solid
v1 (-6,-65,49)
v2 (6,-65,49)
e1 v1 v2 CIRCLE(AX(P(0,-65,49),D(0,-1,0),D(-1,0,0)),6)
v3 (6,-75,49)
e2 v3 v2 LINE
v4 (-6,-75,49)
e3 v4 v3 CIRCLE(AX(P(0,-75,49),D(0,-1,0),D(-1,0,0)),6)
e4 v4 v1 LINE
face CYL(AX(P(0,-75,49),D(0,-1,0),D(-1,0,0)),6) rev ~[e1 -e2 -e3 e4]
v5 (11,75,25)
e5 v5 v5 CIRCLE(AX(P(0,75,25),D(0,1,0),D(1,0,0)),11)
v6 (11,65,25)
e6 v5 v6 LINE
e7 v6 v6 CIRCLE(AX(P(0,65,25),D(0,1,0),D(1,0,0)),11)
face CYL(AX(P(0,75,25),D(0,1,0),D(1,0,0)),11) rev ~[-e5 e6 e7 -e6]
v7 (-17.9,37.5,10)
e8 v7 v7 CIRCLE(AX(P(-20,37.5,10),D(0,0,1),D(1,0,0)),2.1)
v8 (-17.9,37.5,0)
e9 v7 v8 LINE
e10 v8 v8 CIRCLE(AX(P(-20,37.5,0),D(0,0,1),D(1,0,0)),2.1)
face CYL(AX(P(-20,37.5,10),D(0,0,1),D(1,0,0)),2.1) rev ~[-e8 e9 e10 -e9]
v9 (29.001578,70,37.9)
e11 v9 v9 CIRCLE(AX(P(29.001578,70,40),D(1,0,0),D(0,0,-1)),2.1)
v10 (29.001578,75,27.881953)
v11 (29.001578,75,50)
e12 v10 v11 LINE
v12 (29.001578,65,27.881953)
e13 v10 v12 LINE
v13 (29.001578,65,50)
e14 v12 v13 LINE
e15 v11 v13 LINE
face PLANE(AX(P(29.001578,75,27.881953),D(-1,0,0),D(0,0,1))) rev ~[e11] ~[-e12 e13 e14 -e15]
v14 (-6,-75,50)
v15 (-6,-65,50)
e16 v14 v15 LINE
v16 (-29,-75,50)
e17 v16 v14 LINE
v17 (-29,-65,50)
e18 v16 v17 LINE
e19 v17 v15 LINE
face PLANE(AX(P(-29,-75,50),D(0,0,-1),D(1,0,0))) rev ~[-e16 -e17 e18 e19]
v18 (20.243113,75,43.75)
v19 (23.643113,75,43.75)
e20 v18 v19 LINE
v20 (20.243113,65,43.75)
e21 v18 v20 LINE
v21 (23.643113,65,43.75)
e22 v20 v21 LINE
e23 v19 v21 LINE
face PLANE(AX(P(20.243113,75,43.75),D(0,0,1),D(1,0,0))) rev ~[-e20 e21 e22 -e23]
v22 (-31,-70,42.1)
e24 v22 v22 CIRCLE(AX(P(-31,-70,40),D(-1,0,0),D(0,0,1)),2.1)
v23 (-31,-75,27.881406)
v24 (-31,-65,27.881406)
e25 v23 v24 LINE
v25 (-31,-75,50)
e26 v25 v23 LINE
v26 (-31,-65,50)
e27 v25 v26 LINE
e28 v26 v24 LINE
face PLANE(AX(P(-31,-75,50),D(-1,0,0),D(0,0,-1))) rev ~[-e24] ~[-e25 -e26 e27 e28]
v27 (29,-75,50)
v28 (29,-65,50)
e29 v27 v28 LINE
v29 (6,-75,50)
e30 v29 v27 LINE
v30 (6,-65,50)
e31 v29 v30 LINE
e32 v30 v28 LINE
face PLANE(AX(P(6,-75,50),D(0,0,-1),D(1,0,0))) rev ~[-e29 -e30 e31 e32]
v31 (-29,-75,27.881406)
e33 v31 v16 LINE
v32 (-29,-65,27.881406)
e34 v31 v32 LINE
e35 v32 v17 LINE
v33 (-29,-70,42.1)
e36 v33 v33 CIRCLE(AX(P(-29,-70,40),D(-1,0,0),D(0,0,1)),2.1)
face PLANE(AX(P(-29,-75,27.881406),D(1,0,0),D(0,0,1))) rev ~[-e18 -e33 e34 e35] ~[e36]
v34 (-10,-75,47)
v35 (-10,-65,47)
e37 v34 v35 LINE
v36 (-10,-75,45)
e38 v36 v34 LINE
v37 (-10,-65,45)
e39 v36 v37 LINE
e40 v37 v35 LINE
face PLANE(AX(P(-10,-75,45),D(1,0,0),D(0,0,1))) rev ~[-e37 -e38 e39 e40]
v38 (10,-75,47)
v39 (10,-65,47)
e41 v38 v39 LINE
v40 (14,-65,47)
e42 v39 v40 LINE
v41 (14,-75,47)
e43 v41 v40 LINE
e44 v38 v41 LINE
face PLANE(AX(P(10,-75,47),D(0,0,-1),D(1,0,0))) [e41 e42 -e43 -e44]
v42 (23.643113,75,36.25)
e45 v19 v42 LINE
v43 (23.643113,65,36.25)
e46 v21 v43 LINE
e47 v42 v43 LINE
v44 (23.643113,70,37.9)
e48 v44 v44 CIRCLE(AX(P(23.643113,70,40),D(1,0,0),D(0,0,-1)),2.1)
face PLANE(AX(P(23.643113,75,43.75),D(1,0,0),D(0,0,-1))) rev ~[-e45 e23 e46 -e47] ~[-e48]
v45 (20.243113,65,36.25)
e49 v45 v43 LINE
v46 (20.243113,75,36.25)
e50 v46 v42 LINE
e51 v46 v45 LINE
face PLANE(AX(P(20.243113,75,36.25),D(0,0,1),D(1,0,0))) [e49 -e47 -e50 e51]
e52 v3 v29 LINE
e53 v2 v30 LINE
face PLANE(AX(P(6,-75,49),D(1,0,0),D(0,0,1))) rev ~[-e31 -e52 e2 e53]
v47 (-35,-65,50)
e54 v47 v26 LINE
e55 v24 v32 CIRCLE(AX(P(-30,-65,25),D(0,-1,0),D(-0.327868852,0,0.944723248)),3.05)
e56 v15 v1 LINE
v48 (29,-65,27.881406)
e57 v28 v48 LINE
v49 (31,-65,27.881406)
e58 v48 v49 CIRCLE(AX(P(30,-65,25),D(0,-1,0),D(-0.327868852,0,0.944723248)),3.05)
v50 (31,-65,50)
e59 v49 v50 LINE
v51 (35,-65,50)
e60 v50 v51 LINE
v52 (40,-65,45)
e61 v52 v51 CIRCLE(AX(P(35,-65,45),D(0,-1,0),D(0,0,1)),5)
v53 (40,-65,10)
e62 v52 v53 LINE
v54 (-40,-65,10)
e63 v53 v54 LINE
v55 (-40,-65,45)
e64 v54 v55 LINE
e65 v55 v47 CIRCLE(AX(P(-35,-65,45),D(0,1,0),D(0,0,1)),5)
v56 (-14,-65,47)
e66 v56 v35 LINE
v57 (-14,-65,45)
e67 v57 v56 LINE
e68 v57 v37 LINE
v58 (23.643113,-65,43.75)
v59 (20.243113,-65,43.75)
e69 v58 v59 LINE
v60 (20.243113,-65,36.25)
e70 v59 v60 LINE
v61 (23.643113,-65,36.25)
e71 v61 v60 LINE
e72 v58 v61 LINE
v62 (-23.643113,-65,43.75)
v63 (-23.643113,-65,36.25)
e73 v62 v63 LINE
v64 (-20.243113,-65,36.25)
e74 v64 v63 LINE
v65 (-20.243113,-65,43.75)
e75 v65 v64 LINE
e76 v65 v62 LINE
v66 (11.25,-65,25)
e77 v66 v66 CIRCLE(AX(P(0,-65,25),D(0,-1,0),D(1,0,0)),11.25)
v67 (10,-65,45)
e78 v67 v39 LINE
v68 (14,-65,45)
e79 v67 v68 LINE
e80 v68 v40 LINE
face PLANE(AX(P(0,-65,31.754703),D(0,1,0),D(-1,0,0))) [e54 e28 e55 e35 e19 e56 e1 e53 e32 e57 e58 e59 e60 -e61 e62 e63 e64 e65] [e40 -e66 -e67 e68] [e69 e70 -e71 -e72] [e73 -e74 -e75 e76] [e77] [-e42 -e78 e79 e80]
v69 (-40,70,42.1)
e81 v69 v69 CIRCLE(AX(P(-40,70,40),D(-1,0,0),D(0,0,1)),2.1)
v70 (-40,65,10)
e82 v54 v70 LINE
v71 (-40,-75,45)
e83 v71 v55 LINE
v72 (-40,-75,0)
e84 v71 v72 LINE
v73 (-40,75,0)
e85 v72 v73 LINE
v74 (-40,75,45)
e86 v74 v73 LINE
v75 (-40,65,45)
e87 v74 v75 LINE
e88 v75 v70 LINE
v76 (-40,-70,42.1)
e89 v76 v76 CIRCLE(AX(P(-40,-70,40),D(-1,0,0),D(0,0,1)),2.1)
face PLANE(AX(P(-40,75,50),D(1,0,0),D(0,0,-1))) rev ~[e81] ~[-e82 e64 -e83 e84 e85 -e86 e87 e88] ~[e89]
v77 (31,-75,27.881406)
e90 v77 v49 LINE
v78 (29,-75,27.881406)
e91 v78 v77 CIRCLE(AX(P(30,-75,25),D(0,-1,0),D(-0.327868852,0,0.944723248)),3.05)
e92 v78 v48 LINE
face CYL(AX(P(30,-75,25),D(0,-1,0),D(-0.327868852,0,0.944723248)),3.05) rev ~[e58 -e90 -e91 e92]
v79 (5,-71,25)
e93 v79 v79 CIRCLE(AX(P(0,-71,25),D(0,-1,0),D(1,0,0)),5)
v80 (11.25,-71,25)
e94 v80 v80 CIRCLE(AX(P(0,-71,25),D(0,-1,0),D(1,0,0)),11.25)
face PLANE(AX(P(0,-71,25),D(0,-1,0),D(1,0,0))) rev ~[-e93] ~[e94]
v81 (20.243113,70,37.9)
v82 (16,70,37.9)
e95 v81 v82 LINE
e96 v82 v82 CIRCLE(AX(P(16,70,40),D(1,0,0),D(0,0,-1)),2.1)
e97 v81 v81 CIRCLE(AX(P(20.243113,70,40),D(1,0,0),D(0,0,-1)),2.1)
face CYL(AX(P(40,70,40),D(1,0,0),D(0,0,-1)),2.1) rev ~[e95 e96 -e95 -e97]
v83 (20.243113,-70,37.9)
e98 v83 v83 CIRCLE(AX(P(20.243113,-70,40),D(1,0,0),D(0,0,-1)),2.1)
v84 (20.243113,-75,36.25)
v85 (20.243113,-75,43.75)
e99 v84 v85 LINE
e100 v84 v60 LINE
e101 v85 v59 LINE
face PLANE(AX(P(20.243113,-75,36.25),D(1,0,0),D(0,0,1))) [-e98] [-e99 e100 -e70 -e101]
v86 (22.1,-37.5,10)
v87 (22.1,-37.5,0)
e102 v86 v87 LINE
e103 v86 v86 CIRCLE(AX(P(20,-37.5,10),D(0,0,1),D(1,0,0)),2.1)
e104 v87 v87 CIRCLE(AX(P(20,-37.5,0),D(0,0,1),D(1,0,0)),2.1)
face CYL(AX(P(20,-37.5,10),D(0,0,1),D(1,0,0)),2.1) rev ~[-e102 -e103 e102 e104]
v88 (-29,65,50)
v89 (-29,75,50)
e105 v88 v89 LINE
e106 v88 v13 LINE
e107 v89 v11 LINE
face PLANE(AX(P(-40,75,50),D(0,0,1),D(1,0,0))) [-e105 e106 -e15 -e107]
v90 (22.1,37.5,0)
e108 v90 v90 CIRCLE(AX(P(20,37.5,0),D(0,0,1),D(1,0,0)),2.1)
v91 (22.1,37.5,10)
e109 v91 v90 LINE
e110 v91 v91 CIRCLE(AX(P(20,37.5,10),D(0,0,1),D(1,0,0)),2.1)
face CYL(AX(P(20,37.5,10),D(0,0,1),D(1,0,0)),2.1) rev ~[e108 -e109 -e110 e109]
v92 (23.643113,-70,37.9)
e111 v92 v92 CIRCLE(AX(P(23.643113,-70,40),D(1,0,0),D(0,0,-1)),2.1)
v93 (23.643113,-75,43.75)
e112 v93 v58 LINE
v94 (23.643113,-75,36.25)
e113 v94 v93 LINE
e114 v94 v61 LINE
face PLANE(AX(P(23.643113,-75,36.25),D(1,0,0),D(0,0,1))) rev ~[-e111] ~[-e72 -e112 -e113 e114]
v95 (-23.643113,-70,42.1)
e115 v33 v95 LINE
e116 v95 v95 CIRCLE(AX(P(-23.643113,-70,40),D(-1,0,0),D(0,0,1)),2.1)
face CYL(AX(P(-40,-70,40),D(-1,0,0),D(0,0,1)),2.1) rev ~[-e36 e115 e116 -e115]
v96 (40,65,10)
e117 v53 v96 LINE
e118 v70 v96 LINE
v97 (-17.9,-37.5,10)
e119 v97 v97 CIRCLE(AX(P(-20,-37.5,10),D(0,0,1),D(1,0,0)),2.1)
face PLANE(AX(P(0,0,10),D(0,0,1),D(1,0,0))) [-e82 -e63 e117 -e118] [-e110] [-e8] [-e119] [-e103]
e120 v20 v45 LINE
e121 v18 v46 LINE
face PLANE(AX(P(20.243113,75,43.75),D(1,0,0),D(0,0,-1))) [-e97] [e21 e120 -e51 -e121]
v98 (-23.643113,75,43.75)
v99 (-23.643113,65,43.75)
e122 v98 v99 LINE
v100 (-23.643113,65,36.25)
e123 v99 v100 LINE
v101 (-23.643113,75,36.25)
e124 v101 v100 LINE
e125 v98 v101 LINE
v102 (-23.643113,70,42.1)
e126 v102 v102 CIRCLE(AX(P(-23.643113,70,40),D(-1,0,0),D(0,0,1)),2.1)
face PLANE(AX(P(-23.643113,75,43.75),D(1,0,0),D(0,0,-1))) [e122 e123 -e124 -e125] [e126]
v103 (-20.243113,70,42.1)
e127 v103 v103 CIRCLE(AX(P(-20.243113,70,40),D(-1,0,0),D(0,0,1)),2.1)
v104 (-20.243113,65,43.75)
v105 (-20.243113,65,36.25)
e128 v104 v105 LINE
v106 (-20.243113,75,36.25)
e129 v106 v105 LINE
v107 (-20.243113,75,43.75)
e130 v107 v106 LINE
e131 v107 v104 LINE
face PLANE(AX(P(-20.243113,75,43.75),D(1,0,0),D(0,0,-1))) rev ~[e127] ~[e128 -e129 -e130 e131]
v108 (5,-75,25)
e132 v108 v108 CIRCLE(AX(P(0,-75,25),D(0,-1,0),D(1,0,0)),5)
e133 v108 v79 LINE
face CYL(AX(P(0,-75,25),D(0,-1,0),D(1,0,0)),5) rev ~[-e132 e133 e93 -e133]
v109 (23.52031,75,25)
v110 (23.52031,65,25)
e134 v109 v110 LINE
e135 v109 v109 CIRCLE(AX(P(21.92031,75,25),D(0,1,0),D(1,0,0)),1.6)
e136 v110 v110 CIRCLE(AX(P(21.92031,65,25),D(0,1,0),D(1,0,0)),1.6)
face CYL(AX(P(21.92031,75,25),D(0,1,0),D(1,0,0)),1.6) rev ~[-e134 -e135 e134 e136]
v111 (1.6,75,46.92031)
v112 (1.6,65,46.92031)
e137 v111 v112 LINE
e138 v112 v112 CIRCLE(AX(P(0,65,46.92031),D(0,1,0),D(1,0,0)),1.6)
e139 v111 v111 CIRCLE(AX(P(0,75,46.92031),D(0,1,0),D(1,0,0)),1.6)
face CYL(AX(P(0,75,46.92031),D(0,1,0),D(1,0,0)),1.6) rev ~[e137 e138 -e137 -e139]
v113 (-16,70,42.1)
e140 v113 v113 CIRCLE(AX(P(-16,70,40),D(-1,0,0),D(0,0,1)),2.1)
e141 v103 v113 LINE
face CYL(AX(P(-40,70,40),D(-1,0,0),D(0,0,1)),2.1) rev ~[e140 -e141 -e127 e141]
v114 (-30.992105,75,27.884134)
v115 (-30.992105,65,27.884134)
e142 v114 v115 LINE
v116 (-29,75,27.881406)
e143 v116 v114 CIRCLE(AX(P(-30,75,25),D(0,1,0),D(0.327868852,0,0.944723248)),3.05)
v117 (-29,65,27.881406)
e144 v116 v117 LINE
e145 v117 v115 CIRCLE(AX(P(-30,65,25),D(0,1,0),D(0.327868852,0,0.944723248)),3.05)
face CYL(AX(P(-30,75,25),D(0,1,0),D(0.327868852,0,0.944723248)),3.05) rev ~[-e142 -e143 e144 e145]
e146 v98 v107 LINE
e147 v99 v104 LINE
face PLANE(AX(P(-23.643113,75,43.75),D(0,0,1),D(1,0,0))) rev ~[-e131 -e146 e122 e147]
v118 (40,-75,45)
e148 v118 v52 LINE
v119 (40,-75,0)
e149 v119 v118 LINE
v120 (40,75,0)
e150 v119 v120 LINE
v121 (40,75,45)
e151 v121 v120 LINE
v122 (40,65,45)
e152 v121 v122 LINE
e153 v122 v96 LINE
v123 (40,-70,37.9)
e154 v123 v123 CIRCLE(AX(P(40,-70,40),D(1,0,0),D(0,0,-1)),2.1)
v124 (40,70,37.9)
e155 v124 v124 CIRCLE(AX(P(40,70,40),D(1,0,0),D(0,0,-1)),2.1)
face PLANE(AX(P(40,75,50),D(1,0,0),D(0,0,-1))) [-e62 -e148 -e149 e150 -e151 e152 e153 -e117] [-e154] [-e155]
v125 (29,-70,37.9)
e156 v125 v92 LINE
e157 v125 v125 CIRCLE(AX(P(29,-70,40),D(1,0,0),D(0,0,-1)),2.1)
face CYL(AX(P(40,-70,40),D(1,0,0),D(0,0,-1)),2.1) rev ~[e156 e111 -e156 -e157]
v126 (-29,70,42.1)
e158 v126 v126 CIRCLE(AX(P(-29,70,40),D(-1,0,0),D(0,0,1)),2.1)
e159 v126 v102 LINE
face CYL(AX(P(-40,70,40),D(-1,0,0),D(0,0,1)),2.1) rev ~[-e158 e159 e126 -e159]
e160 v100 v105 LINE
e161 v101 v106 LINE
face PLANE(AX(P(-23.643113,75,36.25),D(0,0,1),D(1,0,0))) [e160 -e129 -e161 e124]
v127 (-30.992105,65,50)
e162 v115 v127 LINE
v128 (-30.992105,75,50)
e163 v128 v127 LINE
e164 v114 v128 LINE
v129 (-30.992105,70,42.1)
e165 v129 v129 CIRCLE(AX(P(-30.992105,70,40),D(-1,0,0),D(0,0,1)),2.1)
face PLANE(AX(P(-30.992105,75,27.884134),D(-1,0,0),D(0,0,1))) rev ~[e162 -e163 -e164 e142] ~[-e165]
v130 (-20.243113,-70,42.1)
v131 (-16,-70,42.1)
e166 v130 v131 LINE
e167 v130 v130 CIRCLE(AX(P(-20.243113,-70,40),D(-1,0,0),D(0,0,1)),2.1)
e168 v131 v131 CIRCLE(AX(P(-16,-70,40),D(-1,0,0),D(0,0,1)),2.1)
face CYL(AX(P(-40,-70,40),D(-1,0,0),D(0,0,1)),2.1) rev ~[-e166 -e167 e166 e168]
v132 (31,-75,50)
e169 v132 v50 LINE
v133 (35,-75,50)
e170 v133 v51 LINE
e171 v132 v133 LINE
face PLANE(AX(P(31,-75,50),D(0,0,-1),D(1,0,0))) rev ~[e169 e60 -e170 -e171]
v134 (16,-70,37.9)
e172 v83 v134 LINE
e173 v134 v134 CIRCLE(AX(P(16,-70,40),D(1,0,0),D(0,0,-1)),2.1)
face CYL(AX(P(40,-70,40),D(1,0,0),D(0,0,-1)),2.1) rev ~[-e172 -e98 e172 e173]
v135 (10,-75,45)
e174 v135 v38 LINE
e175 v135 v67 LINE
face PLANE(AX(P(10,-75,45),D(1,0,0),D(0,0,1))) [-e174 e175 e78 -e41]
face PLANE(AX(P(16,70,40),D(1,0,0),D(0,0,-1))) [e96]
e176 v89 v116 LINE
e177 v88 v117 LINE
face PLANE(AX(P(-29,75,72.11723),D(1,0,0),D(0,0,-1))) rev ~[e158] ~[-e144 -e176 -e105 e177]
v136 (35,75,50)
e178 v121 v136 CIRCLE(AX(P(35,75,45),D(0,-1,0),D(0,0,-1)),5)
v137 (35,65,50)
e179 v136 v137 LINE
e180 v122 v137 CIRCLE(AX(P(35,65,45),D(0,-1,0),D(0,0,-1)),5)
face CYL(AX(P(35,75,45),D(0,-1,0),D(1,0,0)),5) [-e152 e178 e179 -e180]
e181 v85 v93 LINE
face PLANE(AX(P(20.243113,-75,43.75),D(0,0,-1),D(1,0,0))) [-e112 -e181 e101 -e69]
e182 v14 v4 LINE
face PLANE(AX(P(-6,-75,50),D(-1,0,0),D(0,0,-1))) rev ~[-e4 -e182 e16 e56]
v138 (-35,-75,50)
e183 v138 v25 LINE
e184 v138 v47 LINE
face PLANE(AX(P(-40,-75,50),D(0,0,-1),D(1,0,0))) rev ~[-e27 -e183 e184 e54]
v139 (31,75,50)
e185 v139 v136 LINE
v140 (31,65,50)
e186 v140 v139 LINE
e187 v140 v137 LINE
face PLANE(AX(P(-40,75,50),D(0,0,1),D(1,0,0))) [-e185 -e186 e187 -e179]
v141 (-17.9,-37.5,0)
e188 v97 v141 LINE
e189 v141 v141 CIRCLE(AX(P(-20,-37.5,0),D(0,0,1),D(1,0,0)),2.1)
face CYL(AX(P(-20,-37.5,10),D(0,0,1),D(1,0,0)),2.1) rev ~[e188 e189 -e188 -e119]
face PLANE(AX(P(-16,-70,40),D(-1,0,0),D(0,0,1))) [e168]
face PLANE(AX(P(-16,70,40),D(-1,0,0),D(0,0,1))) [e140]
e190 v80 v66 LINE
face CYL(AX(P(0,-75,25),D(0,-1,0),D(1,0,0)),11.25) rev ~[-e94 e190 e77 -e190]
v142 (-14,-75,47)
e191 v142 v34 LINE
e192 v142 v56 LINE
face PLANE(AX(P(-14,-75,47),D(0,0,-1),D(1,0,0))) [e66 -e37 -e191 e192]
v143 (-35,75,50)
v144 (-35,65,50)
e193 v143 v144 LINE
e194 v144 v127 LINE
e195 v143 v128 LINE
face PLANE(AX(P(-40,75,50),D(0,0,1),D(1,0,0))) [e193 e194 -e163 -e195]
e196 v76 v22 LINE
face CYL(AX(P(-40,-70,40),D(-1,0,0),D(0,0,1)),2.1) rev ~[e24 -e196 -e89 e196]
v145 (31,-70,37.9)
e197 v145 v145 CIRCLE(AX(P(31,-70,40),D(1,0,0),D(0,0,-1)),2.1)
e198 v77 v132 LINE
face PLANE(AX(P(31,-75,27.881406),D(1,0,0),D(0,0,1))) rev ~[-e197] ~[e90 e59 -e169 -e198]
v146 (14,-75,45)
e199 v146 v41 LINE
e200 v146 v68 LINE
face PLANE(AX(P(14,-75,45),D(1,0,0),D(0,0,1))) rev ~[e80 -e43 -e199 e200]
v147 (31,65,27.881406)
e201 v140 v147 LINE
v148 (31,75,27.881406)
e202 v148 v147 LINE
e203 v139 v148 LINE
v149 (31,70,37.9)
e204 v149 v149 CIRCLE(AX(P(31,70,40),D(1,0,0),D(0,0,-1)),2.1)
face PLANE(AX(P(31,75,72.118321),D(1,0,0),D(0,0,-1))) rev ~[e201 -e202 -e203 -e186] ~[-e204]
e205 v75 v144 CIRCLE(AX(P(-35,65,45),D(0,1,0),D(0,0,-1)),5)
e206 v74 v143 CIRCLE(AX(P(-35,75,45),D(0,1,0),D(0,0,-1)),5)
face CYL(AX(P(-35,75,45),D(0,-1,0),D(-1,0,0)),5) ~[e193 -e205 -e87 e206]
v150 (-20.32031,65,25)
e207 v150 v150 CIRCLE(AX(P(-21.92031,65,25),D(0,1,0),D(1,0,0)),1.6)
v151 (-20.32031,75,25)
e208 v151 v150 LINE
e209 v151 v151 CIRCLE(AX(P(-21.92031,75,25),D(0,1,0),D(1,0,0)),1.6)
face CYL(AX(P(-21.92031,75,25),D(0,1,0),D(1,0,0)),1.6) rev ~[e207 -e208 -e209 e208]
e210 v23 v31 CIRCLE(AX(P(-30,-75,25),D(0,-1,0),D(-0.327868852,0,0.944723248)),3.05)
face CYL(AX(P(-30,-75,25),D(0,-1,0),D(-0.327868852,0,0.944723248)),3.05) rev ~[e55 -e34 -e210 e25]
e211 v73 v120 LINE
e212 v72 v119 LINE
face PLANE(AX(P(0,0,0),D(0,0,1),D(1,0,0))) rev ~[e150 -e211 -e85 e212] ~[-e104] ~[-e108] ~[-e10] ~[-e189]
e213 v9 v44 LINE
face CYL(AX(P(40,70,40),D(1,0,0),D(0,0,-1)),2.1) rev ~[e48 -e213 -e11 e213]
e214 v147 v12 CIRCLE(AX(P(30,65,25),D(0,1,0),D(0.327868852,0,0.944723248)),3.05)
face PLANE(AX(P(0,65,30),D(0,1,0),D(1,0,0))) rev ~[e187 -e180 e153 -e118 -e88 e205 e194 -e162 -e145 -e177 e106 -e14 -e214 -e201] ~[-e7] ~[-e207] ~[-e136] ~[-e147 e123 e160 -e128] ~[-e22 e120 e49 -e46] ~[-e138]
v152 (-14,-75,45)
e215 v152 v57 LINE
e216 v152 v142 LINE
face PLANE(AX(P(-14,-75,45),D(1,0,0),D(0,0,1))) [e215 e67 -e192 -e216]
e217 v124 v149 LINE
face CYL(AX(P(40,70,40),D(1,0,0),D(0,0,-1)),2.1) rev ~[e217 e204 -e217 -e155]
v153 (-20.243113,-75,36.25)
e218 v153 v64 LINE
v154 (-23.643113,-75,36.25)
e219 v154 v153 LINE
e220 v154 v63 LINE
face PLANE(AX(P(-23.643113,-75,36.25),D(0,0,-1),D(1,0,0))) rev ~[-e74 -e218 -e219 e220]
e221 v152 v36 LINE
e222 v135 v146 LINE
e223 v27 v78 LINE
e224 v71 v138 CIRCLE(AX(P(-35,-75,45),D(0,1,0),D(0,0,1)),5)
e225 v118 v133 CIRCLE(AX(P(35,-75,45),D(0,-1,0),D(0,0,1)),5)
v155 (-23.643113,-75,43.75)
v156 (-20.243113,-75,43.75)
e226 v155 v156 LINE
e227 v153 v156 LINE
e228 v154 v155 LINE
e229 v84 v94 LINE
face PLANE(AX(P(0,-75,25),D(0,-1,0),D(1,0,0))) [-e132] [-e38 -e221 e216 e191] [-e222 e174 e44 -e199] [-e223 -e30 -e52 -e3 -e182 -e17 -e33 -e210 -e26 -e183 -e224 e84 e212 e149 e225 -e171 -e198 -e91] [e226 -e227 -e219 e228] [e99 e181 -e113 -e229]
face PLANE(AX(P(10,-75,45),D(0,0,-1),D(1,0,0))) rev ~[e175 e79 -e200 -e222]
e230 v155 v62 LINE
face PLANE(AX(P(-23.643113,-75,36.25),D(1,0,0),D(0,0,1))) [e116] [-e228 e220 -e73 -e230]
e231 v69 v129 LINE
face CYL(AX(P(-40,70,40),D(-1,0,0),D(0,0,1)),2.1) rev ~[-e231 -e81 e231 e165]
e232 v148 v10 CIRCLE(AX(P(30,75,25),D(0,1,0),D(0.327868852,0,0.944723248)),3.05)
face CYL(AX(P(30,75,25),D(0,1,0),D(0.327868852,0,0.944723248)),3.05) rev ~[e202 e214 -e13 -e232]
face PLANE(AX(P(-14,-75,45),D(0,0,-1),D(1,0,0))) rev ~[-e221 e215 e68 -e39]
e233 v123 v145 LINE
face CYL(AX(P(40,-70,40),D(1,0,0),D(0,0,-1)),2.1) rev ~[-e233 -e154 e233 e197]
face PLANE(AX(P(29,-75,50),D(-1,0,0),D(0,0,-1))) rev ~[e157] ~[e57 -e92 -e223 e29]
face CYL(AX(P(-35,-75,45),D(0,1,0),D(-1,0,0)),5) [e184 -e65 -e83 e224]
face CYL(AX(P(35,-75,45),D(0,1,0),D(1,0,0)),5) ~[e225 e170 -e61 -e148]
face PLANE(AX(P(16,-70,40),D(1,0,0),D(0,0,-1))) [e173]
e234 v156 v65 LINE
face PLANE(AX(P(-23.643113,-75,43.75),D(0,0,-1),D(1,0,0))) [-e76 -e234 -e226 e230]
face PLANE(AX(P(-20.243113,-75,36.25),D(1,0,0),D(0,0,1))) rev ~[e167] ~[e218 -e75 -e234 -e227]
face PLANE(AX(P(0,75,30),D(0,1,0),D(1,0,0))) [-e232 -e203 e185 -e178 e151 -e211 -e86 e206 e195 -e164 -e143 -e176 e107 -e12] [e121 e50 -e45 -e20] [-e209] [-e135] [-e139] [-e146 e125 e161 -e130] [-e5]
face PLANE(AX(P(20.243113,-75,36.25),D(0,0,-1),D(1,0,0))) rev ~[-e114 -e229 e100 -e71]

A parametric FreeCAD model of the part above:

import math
import FreeCAD as App
import Part
import Sketcher

V = App.Vector
Q = App.Units.Quantity


def edges_at(feature, points):
    """Names of the edges that pass closest to the given points."""
    edges = feature.Shape.Edges
    near = lambda p: min(range(len(edges)), key=lambda i: edges[i].distToShape(Part.Vertex(*p))[0])
    return sorted({f"Edge{near(p) + 1}" for p in points})


def add_polygon(sketch, points):
    """Adds a closed chain of lines whose ends are joined by coincident constraints."""
    first, n = sketch.GeometryCount, len(points)
    for a, b in zip(points, points[1:] + points[:1]):
        sketch.addGeometry(Part.LineSegment(App.Vector(*a, 0), App.Vector(*b, 0)), False)
    for i in range(n):
        sketch.addConstraint(Sketcher.Constraint("Coincident", first + i, 2, first + (i + 1) % n, 1))

doc = App.newDocument("Part")
body = doc.addObject("PartDesign::Body", "Body")

# Sketch on XY plane
sketch1 = doc.addObject("Sketcher::SketchObject", "Sketch")
body.addObject(sketch1)
sketch1.AttachmentSupport = (doc.XY_Plane, [""])
sketch1.MapMode = "FlatFace"
add_polygon(sketch1, [(-40, 75), (-40, -75), (40, -75), (40, 75)])  # lines 0-3
sketch1.addConstraint(Sketcher.Constraint("Vertical", 0))
sketch1.addConstraint(Sketcher.Constraint("Horizontal", 1))
sketch1.addConstraint(Sketcher.Constraint("Vertical", 2))
sketch1.addConstraint(Sketcher.Constraint("Horizontal", 3))
sketch1.addConstraint(Sketcher.Constraint("Symmetric", 0, 2, 2, 2, -1, 1))
sketch1.addConstraint(Sketcher.Constraint("DistanceX", 1, 1, 1, 2, Q("80 mm")))
sketch1.addConstraint(Sketcher.Constraint("DistanceY", 0, 2, 0, 1, Q("150 mm")))
pad1 = doc.addObject("PartDesign::Pad", "Pad")
body.addObject(pad1)
pad1.Profile = sketch1
pad1.Length = 10

# Sketch on XZ plane
sketch2 = doc.addObject("Sketcher::SketchObject", "Sketch001")
body.addObject(sketch2)
sketch2.AttachmentSupport = (doc.XZ_Plane, [""])
sketch2.MapMode = "FlatFace"
sketch2.AttachmentOffset = App.Placement(V(0, 0, 75), App.Rotation())
sketch2.addGeometry(Part.ArcOfCircle(Part.Circle(V(0, 49, 0), V(0, 0, 1), 6), math.radians(180), math.radians(360)), False)
sketch2.addGeometry(Part.LineSegment(V(-6, 49, 0), V(-6, 50, 0)), False)
sketch2.addGeometry(Part.LineSegment(V(-6, 50, 0), V(-29, 50, 0)), False)
sketch2.addGeometry(Part.LineSegment(V(-29, 50, 0), V(-29, 27.9, 0)), False)
sketch2.addGeometry(Part.ArcOfCircle(Part.Circle(V(-30, 25, 0), V(0, 0, 1), 3), math.radians(109), math.radians(431)), False)
sketch2.addGeometry(Part.LineSegment(V(-31, 27.9, 0), V(-31, 50, 0)), False)
sketch2.addGeometry(Part.LineSegment(V(-31, 50, 0), V(-40, 50, 0)), False)
sketch2.addGeometry(Part.LineSegment(V(-40, 50, 0), V(-40, 10, 0)), False)
sketch2.addGeometry(Part.LineSegment(V(-40, 10, 0), V(40, 10, 0)), False)
sketch2.addGeometry(Part.LineSegment(V(40, 10, 0), V(40, 50, 0)), False)
sketch2.addGeometry(Part.LineSegment(V(40, 50, 0), V(31, 50, 0)), False)
sketch2.addGeometry(Part.LineSegment(V(31, 50, 0), V(31, 27.9, 0)), False)
sketch2.addGeometry(Part.ArcOfCircle(Part.Circle(V(30, 25, 0), V(0, 0, 1), 3), math.radians(109), math.radians(431)), False)
sketch2.addGeometry(Part.LineSegment(V(29, 27.9, 0), V(29, 50, 0)), False)
sketch2.addGeometry(Part.LineSegment(V(29, 50, 0), V(6, 50, 0)), False)
sketch2.addGeometry(Part.LineSegment(V(6, 50, 0), V(6, 49, 0)), False)
sketch2.addGeometry(Part.Circle(V(0, 25, 0), V(0, 0, 1), 11.2), False)
sketch2.addConstraint(Sketcher.Constraint("Tangent", 0, 1, 1, 1))
sketch2.addConstraint(Sketcher.Constraint("Coincident", 1, 2, 2, 1))
sketch2.addConstraint(Sketcher.Constraint("Coincident", 2, 2, 3, 1))
sketch2.addConstraint(Sketcher.Constraint("Coincident", 3, 2, 4, 2))
sketch2.addConstraint(Sketcher.Constraint("Coincident", 4, 1, 5, 1))
sketch2.addConstraint(Sketcher.Constraint("Coincident", 5, 2, 6, 1))
sketch2.addConstraint(Sketcher.Constraint("Coincident", 6, 2, 7, 1))
sketch2.addConstraint(Sketcher.Constraint("Coincident", 7, 2, 8, 1))
sketch2.addConstraint(Sketcher.Constraint("Coincident", 8, 2, 9, 1))
sketch2.addConstraint(Sketcher.Constraint("Coincident", 9, 2, 10, 1))
sketch2.addConstraint(Sketcher.Constraint("Coincident", 10, 2, 11, 1))
sketch2.addConstraint(Sketcher.Constraint("Coincident", 11, 2, 12, 2))
sketch2.addConstraint(Sketcher.Constraint("Coincident", 12, 1, 13, 1))
sketch2.addConstraint(Sketcher.Constraint("Coincident", 13, 2, 14, 1))
sketch2.addConstraint(Sketcher.Constraint("Coincident", 14, 2, 15, 1))
sketch2.addConstraint(Sketcher.Constraint("Tangent", 15, 2, 0, 2))
sketch2.addConstraint(Sketcher.Constraint("Vertical", 1))
sketch2.addConstraint(Sketcher.Constraint("Horizontal", 2))
sketch2.addConstraint(Sketcher.Constraint("Vertical", 3))
sketch2.addConstraint(Sketcher.Constraint("Vertical", 5))
sketch2.addConstraint(Sketcher.Constraint("Horizontal", 6))
sketch2.addConstraint(Sketcher.Constraint("Vertical", 7))
sketch2.addConstraint(Sketcher.Constraint("Horizontal", 8))
sketch2.addConstraint(Sketcher.Constraint("Vertical", 9))
sketch2.addConstraint(Sketcher.Constraint("Horizontal", 10))
sketch2.addConstraint(Sketcher.Constraint("Vertical", 11))
sketch2.addConstraint(Sketcher.Constraint("Vertical", 13))
sketch2.addConstraint(Sketcher.Constraint("Horizontal", 14))
sketch2.addConstraint(Sketcher.Constraint("Vertical", 15))
sketch2.addConstraint(Sketcher.Constraint("Equal", 4, 12))
sketch2.addConstraint(Sketcher.Constraint("Symmetric", 4, 3, 12, 3, -2))
sketch2.addConstraint(Sketcher.Constraint("Symmetric", 6, 2, 9, 2, -2))
sketch2.addConstraint(Sketcher.Constraint("Symmetric", 2, 2, 13, 2, -2))
sketch2.addConstraint(Sketcher.Constraint("PointOnObject", 0, 3, -2))
sketch2.addConstraint(Sketcher.Constraint("PointOnObject", 16, 3, -2))
sketch2.addConstraint(Sketcher.Constraint("Horizontal", 12, 3, 16, 3))
sketch2.addConstraint(Sketcher.Constraint("Horizontal", 3, 2, 4, 1))
sketch2.addConstraint(Sketcher.Constraint("Horizontal", 2, 2, 5, 2))
sketch2.addConstraint(Sketcher.Constraint("Horizontal", 4, 1, 11, 2))
sketch2.addConstraint(Sketcher.Constraint("Radius", 0, Q("6 mm")))
sketch2.addConstraint(Sketcher.Constraint("Diameter", 16, Q("22.5 mm")))
sketch2.addConstraint(Sketcher.Constraint("DistanceX", 2, 2, 2, 1, Q("23 mm")))
sketch2.addConstraint(Sketcher.Constraint("DistanceX", 6, 2, 6, 1, Q("9 mm")))
sketch2.addConstraint(Sketcher.Constraint("DistanceX", 8, 1, 8, 2, Q("80 mm")))
sketch2.addConstraint(Sketcher.Constraint("DistanceY", 1, 1, 1, 2, Q("1 mm")))
sketch2.addConstraint(Sketcher.Constraint("DistanceY", 7, 2, 7, 1, Q("40 mm")))
sketch2.addConstraint(Sketcher.Constraint("Radius", 4, Q("3.05 mm")))
sketch2.addConstraint(Sketcher.Constraint("DistanceY", -1, 1, 0, 3, Q("49 mm")))
sketch2.addConstraint(Sketcher.Constraint("DistanceY", -1, 1, 4, 3, Q("25 mm")))
pad2 = doc.addObject("PartDesign::Pad", "Pad001")
body.addObject(pad2)
pad2.Profile = sketch2
pad2.Length = 10
pad2.Reversed = True

# Sketch on XZ plane
sketch3 = doc.addObject("Sketcher::SketchObject", "Sketch002")
body.addObject(sketch3)
sketch3.AttachmentSupport = (doc.XZ_Plane, [""])
sketch3.MapMode = "FlatFace"
sketch3.AttachmentOffset = App.Placement(V(0, 0, 75), App.Rotation())
sketch3.addGeometry(Part.Circle(V(0, 25, 0), V(0, 0, 1), 11), False)
sketch3.addGeometry(Part.Circle(V(0, 25, 0), V(0, 0, 1), 5), False)
sketch3.addConstraint(Sketcher.Constraint("Coincident", 1, 3, 0, 3))
sketch3.addConstraint(Sketcher.Constraint("PointOnObject", 0, 3, -2))
sketch3.addConstraint(Sketcher.Constraint("Diameter", 1, Q("10 mm")))
sketch3.addConstraint(Sketcher.Constraint("Diameter", 0, Q("22.5 mm")))
sketch3.addConstraint(Sketcher.Constraint("DistanceY", -1, 1, 0, 3, Q("25 mm")))
pad3 = doc.addObject("PartDesign::Pad", "Pad002")
body.addObject(pad3)
pad3.Profile = sketch3
pad3.Length = 4
pad3.Reversed = True

# Sketch on YZ plane
sketch4 = doc.addObject("Sketcher::SketchObject", "Sketch003")
body.addObject(sketch4)
sketch4.AttachmentSupport = (doc.YZ_Plane, [""])
sketch4.MapMode = "FlatFace"
sketch4.AttachmentOffset = App.Placement(V(0, 0, 40), App.Rotation())
sketch4.addGeometry(Part.Circle(V(-70, 40, 0), V(0, 0, 1), 2.1), False)
sketch4.addConstraint(Sketcher.Constraint("Diameter", 0, Q("4.2 mm")))
sketch4.addConstraint(Sketcher.Constraint("DistanceX", 0, 3, -1, 1, Q("70 mm")))
sketch4.addConstraint(Sketcher.Constraint("DistanceY", -1, 1, 0, 3, Q("40 mm")))
pocket1 = doc.addObject("PartDesign::Pocket", "Pocket")
body.addObject(pocket1)
pocket1.Profile = sketch4
pocket1.Length = 24

# Sketch on XZ plane
sketch5 = doc.addObject("Sketcher::SketchObject", "Sketch004")
body.addObject(sketch5)
sketch5.AttachmentSupport = (doc.XZ_Plane, [""])
sketch5.MapMode = "FlatFace"
sketch5.AttachmentOffset = App.Placement(V(0, 0, 75), App.Rotation())
add_polygon(sketch5, [(-23.6, 43.8), (-23.6, 36.2), (-20.2, 36.2), (-20.2, 43.8)])  # lines 0-3
add_polygon(sketch5, [(20.2, 43.8), (20.2, 36.2), (23.6, 36.2), (23.6, 43.8)])  # lines 4-7
sketch5.addConstraint(Sketcher.Constraint("Vertical", 0))
sketch5.addConstraint(Sketcher.Constraint("Horizontal", 1))
sketch5.addConstraint(Sketcher.Constraint("Vertical", 2))
sketch5.addConstraint(Sketcher.Constraint("Horizontal", 3))
sketch5.addConstraint(Sketcher.Constraint("Vertical", 4))
sketch5.addConstraint(Sketcher.Constraint("Horizontal", 5))
sketch5.addConstraint(Sketcher.Constraint("Vertical", 6))
sketch5.addConstraint(Sketcher.Constraint("Horizontal", 7))
sketch5.addConstraint(Sketcher.Constraint("Symmetric", 1, 2, 4, 2, -2))
sketch5.addConstraint(Sketcher.Constraint("Symmetric", 3, 2, 6, 2, -2))
sketch5.addConstraint(Sketcher.Constraint("DistanceX", 1, 1, 1, 2, Q("3.4 mm")))
sketch5.addConstraint(Sketcher.Constraint("DistanceY", 0, 2, 0, 1, Q("7.5 mm")))
sketch5.addConstraint(Sketcher.Constraint("DistanceY", -1, 1, 0, 2, Q("36.25 mm")))
sketch5.addConstraint(Sketcher.Constraint("DistanceX", 0, 2, -1, 1, Q("23.643113 mm")))
pocket2 = doc.addObject("PartDesign::Pocket", "Pocket001")
body.addObject(pocket2)
pocket2.Profile = sketch5
pocket2.Length = 24

# Sketch on YZ plane
sketch6 = doc.addObject("Sketcher::SketchObject", "Sketch005")
body.addObject(sketch6)
sketch6.AttachmentSupport = (doc.YZ_Plane, [""])
sketch6.MapMode = "FlatFace"
sketch6.AttachmentOffset = App.Placement(V(0, 0, -40), App.Rotation())
sketch6.addGeometry(Part.Circle(V(-70, 40, 0), V(0, 0, 1), 2.1), False)
sketch6.addConstraint(Sketcher.Constraint("Diameter", 0, Q("4.2 mm")))
sketch6.addConstraint(Sketcher.Constraint("DistanceX", 0, 3, -1, 1, Q("70 mm")))
sketch6.addConstraint(Sketcher.Constraint("DistanceY", -1, 1, 0, 3, Q("40 mm")))
pocket3 = doc.addObject("PartDesign::Pocket", "Pocket002")
body.addObject(pocket3)
pocket3.Profile = sketch6
pocket3.Length = 24
pocket3.Reversed = True

# Sketch on XZ plane
sketch7 = doc.addObject("Sketcher::SketchObject", "Sketch006")
body.addObject(sketch7)
sketch7.AttachmentSupport = (doc.XZ_Plane, [""])
sketch7.MapMode = "FlatFace"
sketch7.AttachmentOffset = App.Placement(V(0, 0, -75), App.Rotation())
add_polygon(sketch7, [(-40, 10), (-40, 50), (40, 50), (40, 10)])  # lines 0-3
sketch7.addGeometry(Part.Circle(V(0, 46.9, 0), V(0, 0, 1), 1.6), False)  # 4
sketch7.addGeometry(Part.Circle(V(-21.9, 25, 0), V(0, 0, 1), 1.6), False)  # 5
sketch7.addGeometry(Part.Circle(V(0, 25, 0), V(0, 0, 1), 11), False)  # 6
sketch7.addGeometry(Part.Circle(V(21.9, 25, 0), V(0, 0, 1), 1.6), False)  # 7
sketch7.addConstraint(Sketcher.Constraint("Vertical", 0))
sketch7.addConstraint(Sketcher.Constraint("Horizontal", 1))
sketch7.addConstraint(Sketcher.Constraint("Vertical", 2))
sketch7.addConstraint(Sketcher.Constraint("Horizontal", 3))
sketch7.addConstraint(Sketcher.Constraint("Equal", 4, 5))
sketch7.addConstraint(Sketcher.Constraint("Equal", 5, 7))
sketch7.addConstraint(Sketcher.Constraint("Symmetric", 5, 3, 7, 3, -2))
sketch7.addConstraint(Sketcher.Constraint("PointOnObject", 4, 3, -2))
sketch7.addConstraint(Sketcher.Constraint("PointOnObject", 6, 3, -2))
sketch7.addConstraint(Sketcher.Constraint("Horizontal", 5, 3, 6, 3))
sketch7.addConstraint(Sketcher.Constraint("Diameter", 6, Q("22 mm")))
sketch7.addConstraint(Sketcher.Constraint("Diameter", 4, Q("3.2 mm")))
sketch7.addConstraint(Sketcher.Constraint("DistanceX", 1, 1, 1, 2, Q("80 mm")))
sketch7.addConstraint(Sketcher.Constraint("DistanceY", 0, 1, 0, 2, Q("40 mm")))
sketch7.addConstraint(Sketcher.Constraint("DistanceY", -1, 1, 5, 3, Q("25 mm")))
sketch7.addConstraint(Sketcher.Constraint("DistanceX", 0, 2, -1, 1, Q("40 mm")))
sketch7.addConstraint(Sketcher.Constraint("DistanceY", -1, 1, 0, 2, Q("50 mm")))
sketch7.addConstraint(Sketcher.Constraint("DistanceY", -1, 1, 4, 3, Q("46.92031 mm")))
sketch7.addConstraint(Sketcher.Constraint("DistanceX", 5, 3, -1, 1, Q("21.92031 mm")))
pad4 = doc.addObject("PartDesign::Pad", "Pad003")
body.addObject(pad4)
pad4.Profile = sketch7
pad4.Length = 10
doc.recompute()

fillet = doc.addObject("PartDesign::Fillet", "Fillet")
body.addObject(fillet)
fillet.Base = (pad4, edges_at(pad4, [
    (40, 70, 50),
    (-40, 70, 50),
    (40, -70, 50),
    (-40, -70, 50),
]))
fillet.Radius = 5

# Sketch on XZ plane
sketch8 = doc.addObject("Sketcher::SketchObject", "Sketch007")
body.addObject(sketch8)
sketch8.AttachmentSupport = (doc.XZ_Plane, [""])
sketch8.MapMode = "FlatFace"
sketch8.AttachmentOffset = App.Placement(V(0, 0, -75), App.Rotation())
sketch8.addGeometry(Part.LineSegment(V(-31, 72.1, 0), V(-29, 72.1, 0)), False)  # 0
sketch8.addGeometry(Part.LineSegment(V(-29, 72.1, 0), V(-29, 27.9, 0)), False)  # 1
sketch8.addGeometry(Part.ArcOfCircle(Part.Circle(V(-30, 25, 0), V(0, 0, 1), 3), math.radians(109), math.radians(431)), False)  # 2
sketch8.addGeometry(Part.LineSegment(V(-31, 27.9, 0), V(-31, 72.1, 0)), False)  # 3
sketch8.addGeometry(Part.LineSegment(V(29, 72.1, 0), V(31, 72.1, 0)), False)  # 4
sketch8.addGeometry(Part.LineSegment(V(31, 72.1, 0), V(31, 27.9, 0)), False)  # 5
sketch8.addGeometry(Part.ArcOfCircle(Part.Circle(V(30, 25, 0), V(0, 0, 1), 3), math.radians(109), math.radians(431)), False)  # 6
sketch8.addGeometry(Part.LineSegment(V(29, 27.9, 0), V(29, 72.1, 0)), False)  # 7
add_polygon(sketch8, [(-23.6, 36.2), (-23.6, 43.8), (-20.2, 43.8), (-20.2, 36.2)])  # lines 8-11
add_polygon(sketch8, [(20.2, 36.2), (20.2, 43.8), (23.6, 43.8), (23.6, 36.2)])  # lines 12-15
sketch8.addConstraint(Sketcher.Constraint("Coincident", 0, 2, 1, 1))
sketch8.addConstraint(Sketcher.Constraint("Coincident", 1, 2, 2, 2))
sketch8.addConstraint(Sketcher.Constraint("Coincident", 2, 1, 3, 1))
sketch8.addConstraint(Sketcher.Constraint("Coincident", 3, 2, 0, 1))
sketch8.addConstraint(Sketcher.Constraint("Coincident", 4, 2, 5, 1))
sketch8.addConstraint(Sketcher.Constraint("Coincident", 5, 2, 6, 2))
sketch8.addConstraint(Sketcher.Constraint("Coincident", 6, 1, 7, 1))
sketch8.addConstraint(Sketcher.Constraint("Coincident", 7, 2, 4, 1))
sketch8.addConstraint(Sketcher.Constraint("Horizontal", 0))
sketch8.addConstraint(Sketcher.Constraint("Vertical", 1))
sketch8.addConstraint(Sketcher.Constraint("Vertical", 3))
sketch8.addConstraint(Sketcher.Constraint("Horizontal", 4))
sketch8.addConstraint(Sketcher.Constraint("Vertical", 5))
sketch8.addConstraint(Sketcher.Constraint("Vertical", 7))
sketch8.addConstraint(Sketcher.Constraint("Vertical", 8))
sketch8.addConstraint(Sketcher.Constraint("Horizontal", 9))
sketch8.addConstraint(Sketcher.Constraint("Vertical", 10))
sketch8.addConstraint(Sketcher.Constraint("Horizontal", 11))
sketch8.addConstraint(Sketcher.Constraint("Vertical", 12))
sketch8.addConstraint(Sketcher.Constraint("Horizontal", 13))
sketch8.addConstraint(Sketcher.Constraint("Vertical", 14))
sketch8.addConstraint(Sketcher.Constraint("Horizontal", 15))
sketch8.addConstraint(Sketcher.Constraint("Equal", 2, 6))
sketch8.addConstraint(Sketcher.Constraint("Symmetric", 2, 3, 6, 3, -2))
sketch8.addConstraint(Sketcher.Constraint("Symmetric", 9, 2, 12, 2, -2))
sketch8.addConstraint(Sketcher.Constraint("Symmetric", 11, 2, 14, 2, -2))
sketch8.addConstraint(Sketcher.Constraint("Horizontal", 1, 2, 5, 2))
sketch8.addConstraint(Sketcher.Constraint("Radius", 2, Q("3.05 mm")))
sketch8.addConstraint(Sketcher.Constraint("DistanceX", 9, 1, 9, 2, Q("3.4 mm")))
sketch8.addConstraint(Sketcher.Constraint("DistanceY", 8, 1, 8, 2, Q("7.5 mm")))
sketch8.addConstraint(Sketcher.Constraint("DistanceX", 2, 3, -1, 1, Q("30 mm")))
sketch8.addConstraint(Sketcher.Constraint("DistanceY", -1, 1, 2, 3, Q("25 mm")))
sketch8.addConstraint(Sketcher.Constraint("DistanceX", 0, 2, -1, 1, Q("29 mm")))
sketch8.addConstraint(Sketcher.Constraint("DistanceY", -1, 1, 8, 2, Q("43.75 mm")))
sketch8.addConstraint(Sketcher.Constraint("DistanceX", 0, 1, 0, 2, Q("1.992105 mm")))
sketch8.addConstraint(Sketcher.Constraint("DistanceX", 4, 1, 4, 2, Q("1.998422 mm")))
sketch8.addConstraint(Sketcher.Constraint("DistanceY", 1, 2, 1, 1, Q("44.235824 mm")))
sketch8.addConstraint(Sketcher.Constraint("DistanceY", 5, 2, 5, 1, Q("44.236915 mm")))
sketch8.addConstraint(Sketcher.Constraint("DistanceX", 8, 2, -1, 1, Q("23.643113 mm")))
pocket4 = doc.addObject("PartDesign::Pocket", "Pocket003")
body.addObject(pocket4)
pocket4.Profile = sketch8
pocket4.Length = 10
pocket4.Reversed = True

# Sketch on YZ plane
sketch9 = doc.addObject("Sketcher::SketchObject", "Sketch008")
body.addObject(sketch9)
sketch9.AttachmentSupport = (doc.YZ_Plane, [""])
sketch9.MapMode = "FlatFace"
sketch9.AttachmentOffset = App.Placement(V(0, 0, 40), App.Rotation())
sketch9.addGeometry(Part.Circle(V(70, 40, 0), V(0, 0, 1), 2.1), False)
sketch9.addConstraint(Sketcher.Constraint("Diameter", 0, Q("4.2 mm")))
sketch9.addConstraint(Sketcher.Constraint("DistanceX", -1, 1, 0, 3, Q("70 mm")))
sketch9.addConstraint(Sketcher.Constraint("DistanceY", -1, 1, 0, 3, Q("40 mm")))
pocket5 = doc.addObject("PartDesign::Pocket", "Pocket004")
body.addObject(pocket5)
pocket5.Profile = sketch9
pocket5.Length = 24

# Sketch on YZ plane
sketch10 = doc.addObject("Sketcher::SketchObject", "Sketch009")
body.addObject(sketch10)
sketch10.AttachmentSupport = (doc.YZ_Plane, [""])
sketch10.MapMode = "FlatFace"
sketch10.AttachmentOffset = App.Placement(V(0, 0, -40), App.Rotation())
sketch10.addGeometry(Part.Circle(V(70, 40, 0), V(0, 0, 1), 2.1), False)
sketch10.addConstraint(Sketcher.Constraint("Diameter", 0, Q("4.2 mm")))
sketch10.addConstraint(Sketcher.Constraint("DistanceX", -1, 1, 0, 3, Q("70 mm")))
sketch10.addConstraint(Sketcher.Constraint("DistanceY", -1, 1, 0, 3, Q("40 mm")))
pocket6 = doc.addObject("PartDesign::Pocket", "Pocket005")
body.addObject(pocket6)
pocket6.Profile = sketch10
pocket6.Length = 24
pocket6.Reversed = True

# Sketch on XZ plane
sketch11 = doc.addObject("Sketcher::SketchObject", "Sketch010")
body.addObject(sketch11)
sketch11.AttachmentSupport = (doc.XZ_Plane, [""])
sketch11.MapMode = "FlatFace"
sketch11.AttachmentOffset = App.Placement(V(0, 0, 75), App.Rotation())
add_polygon(sketch11, [(-14, 47), (-14, 45), (-10, 45), (-10, 47)])  # lines 0-3
add_polygon(sketch11, [(10, 47), (10, 45), (14, 45), (14, 47)])  # lines 4-7
sketch11.addConstraint(Sketcher.Constraint("Vertical", 0))
sketch11.addConstraint(Sketcher.Constraint("Horizontal", 1))
sketch11.addConstraint(Sketcher.Constraint("Vertical", 2))
sketch11.addConstraint(Sketcher.Constraint("Horizontal", 3))
sketch11.addConstraint(Sketcher.Constraint("Vertical", 4))
sketch11.addConstraint(Sketcher.Constraint("Horizontal", 5))
sketch11.addConstraint(Sketcher.Constraint("Vertical", 6))
sketch11.addConstraint(Sketcher.Constraint("Horizontal", 7))
sketch11.addConstraint(Sketcher.Constraint("Symmetric", 1, 2, 4, 2, -2))
sketch11.addConstraint(Sketcher.Constraint("Symmetric", 3, 2, 6, 2, -2))
sketch11.addConstraint(Sketcher.Constraint("DistanceX", 1, 1, 1, 2, Q("4 mm")))
sketch11.addConstraint(Sketcher.Constraint("DistanceY", 0, 2, 0, 1, Q("2 mm")))
sketch11.addConstraint(Sketcher.Constraint("DistanceX", 0, 2, -1, 1, Q("14 mm")))
sketch11.addConstraint(Sketcher.Constraint("DistanceY", -1, 1, 0, 2, Q("45 mm")))
pocket7 = doc.addObject("PartDesign::Pocket", "Pocket006")
body.addObject(pocket7)
pocket7.Profile = sketch11
pocket7.Length = 10

# Sketch on XY plane
sketch12 = doc.addObject("Sketcher::SketchObject", "Sketch011")
body.addObject(sketch12)
sketch12.AttachmentSupport = (doc.XY_Plane, [""])
sketch12.MapMode = "FlatFace"
sketch12.AttachmentOffset = App.Placement(V(0, 0, 10), App.Rotation())
sketch12.addGeometry(Part.Circle(V(-20, 37.5, 0), V(0, 0, 1), 2.1), False)
sketch12.addGeometry(Part.Circle(V(20, 37.5, 0), V(0, 0, 1), 2.1), False)
sketch12.addGeometry(Part.Circle(V(20, -37.5, 0), V(0, 0, 1), 2.1), False)
sketch12.addGeometry(Part.Circle(V(-20, -37.5, 0), V(0, 0, 1), 2.1), False)
sketch12.addConstraint(Sketcher.Constraint("Equal", 0, 1))
sketch12.addConstraint(Sketcher.Constraint("Equal", 1, 2))
sketch12.addConstraint(Sketcher.Constraint("Equal", 2, 3))
sketch12.addConstraint(Sketcher.Constraint("Symmetric", 0, 3, 2, 3, -1, 1))
sketch12.addConstraint(Sketcher.Constraint("Symmetric", 1, 3, 3, 3, -1, 1))
sketch12.addConstraint(Sketcher.Constraint("Symmetric", 0, 3, 1, 3, -2))
sketch12.addConstraint(Sketcher.Constraint("Diameter", 0, Q("4.2 mm")))
sketch12.addConstraint(Sketcher.Constraint("DistanceX", 0, 3, -1, 1, Q("20 mm")))
sketch12.addConstraint(Sketcher.Constraint("DistanceY", 2, 3, 1, 3, Q("75 mm")))
pocket8 = doc.addObject("PartDesign::Pocket", "Pocket007")
body.addObject(pocket8)
pocket8.Profile = sketch12
pocket8.Type = "ThroughAll"

doc.recompute()
